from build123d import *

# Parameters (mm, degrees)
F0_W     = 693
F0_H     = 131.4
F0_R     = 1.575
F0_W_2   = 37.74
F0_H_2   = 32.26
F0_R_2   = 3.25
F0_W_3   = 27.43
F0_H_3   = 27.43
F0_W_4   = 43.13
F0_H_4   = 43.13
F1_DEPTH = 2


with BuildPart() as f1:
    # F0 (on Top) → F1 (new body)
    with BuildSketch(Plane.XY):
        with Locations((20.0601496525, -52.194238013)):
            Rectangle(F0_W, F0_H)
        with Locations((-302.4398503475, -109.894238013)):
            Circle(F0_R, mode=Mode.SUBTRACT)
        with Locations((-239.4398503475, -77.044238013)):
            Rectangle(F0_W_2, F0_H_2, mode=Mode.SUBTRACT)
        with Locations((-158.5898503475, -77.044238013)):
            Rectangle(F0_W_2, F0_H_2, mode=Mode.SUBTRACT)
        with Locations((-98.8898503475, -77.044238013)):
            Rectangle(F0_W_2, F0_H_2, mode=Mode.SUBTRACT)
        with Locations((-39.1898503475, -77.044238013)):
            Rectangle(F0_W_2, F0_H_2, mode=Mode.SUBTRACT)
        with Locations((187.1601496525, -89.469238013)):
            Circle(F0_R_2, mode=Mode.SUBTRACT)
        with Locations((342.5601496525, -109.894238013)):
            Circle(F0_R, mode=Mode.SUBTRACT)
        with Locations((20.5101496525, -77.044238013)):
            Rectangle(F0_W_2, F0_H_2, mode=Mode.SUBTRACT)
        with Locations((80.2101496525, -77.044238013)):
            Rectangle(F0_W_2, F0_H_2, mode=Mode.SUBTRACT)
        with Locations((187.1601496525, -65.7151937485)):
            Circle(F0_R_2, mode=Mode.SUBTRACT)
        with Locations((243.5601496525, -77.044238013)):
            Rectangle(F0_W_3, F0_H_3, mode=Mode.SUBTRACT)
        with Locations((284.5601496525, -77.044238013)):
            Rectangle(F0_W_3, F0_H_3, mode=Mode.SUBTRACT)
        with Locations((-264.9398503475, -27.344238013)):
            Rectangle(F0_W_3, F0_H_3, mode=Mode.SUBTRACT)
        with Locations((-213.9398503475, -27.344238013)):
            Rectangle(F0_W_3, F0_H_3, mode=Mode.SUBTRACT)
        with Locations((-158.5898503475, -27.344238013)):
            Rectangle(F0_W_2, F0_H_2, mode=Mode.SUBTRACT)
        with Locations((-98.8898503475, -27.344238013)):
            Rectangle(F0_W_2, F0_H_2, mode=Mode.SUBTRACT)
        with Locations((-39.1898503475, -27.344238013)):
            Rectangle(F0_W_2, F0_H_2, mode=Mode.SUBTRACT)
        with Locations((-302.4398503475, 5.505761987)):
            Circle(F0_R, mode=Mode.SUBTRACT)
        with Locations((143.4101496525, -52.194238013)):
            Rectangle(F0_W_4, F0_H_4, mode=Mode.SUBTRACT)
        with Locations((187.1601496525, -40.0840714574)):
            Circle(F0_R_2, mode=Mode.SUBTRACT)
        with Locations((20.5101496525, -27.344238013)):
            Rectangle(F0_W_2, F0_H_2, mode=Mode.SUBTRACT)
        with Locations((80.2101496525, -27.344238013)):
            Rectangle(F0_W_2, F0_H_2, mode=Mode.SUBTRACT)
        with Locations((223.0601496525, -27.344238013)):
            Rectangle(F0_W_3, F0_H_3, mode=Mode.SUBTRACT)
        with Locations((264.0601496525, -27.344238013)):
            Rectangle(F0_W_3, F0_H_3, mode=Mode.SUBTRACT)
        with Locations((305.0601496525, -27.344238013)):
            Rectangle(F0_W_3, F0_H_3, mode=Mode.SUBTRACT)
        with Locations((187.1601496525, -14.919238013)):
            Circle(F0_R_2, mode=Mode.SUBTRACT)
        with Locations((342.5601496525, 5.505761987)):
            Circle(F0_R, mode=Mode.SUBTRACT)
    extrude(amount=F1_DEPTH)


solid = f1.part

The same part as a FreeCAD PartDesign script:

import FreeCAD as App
import Part
import Sketcher
Q = App.Units.Quantity

doc = App.newDocument("Part")
body = doc.addObject("PartDesign::Body", "Body")

# Sketch on XY plane
sketch1 = doc.addObject("Sketcher::SketchObject", "Sketch")
body.addObject(sketch1)
sketch1.AttachmentSupport = (doc.XY_Plane, [""])
sketch1.MapMode = "FlatFace"
sketch1.addGeometry([
    Part.LineSegment(App.Vector(-326.4, 13.5, 0), App.Vector(-326.4, -117.9, 0)),  # 0
    Part.LineSegment(App.Vector(-326.4, -117.9, 0), App.Vector(366.6, -117.9, 0)),  # 1
    Part.LineSegment(App.Vector(366.6, -117.9, 0), App.Vector(366.6, 13.5, 0)),  # 2
    Part.LineSegment(App.Vector(366.6, 13.5, 0), App.Vector(-326.4, 13.5, 0)),  # 3
    Part.Circle(App.Vector(-302.4, -109.9, 0), App.Vector(0, 0, 1), 1.6),  # 4
    Part.LineSegment(App.Vector(-220.6, -93.2, 0), App.Vector(-258.3, -93.2, 0)),  # 5
    Part.LineSegment(App.Vector(-258.3, -93.2, 0), App.Vector(-258.3, -60.9, 0)),  # 6
    Part.LineSegment(App.Vector(-258.3, -60.9, 0), App.Vector(-220.6, -60.9, 0)),  # 7
    Part.LineSegment(App.Vector(-220.6, -60.9, 0), App.Vector(-220.6, -93.2, 0)),  # 8
    Part.LineSegment(App.Vector(-139.7, -93.2, 0), App.Vector(-177.5, -93.2, 0)),  # 9
    Part.LineSegment(App.Vector(-177.5, -93.2, 0), App.Vector(-177.5, -60.9, 0)),  # 10
    Part.LineSegment(App.Vector(-177.5, -60.9, 0), App.Vector(-139.7, -60.9, 0)),  # 11
    Part.LineSegment(App.Vector(-139.7, -60.9, 0), App.Vector(-139.7, -93.2, 0)),  # 12
    Part.LineSegment(App.Vector(-80, -93.2, 0), App.Vector(-117.8, -93.2, 0)),  # 13
    Part.LineSegment(App.Vector(-117.8, -93.2, 0), App.Vector(-117.8, -60.9, 0)),  # 14
    Part.LineSegment(App.Vector(-117.8, -60.9, 0), App.Vector(-80, -60.9, 0)),  # 15
    Part.LineSegment(App.Vector(-80, -60.9, 0), App.Vector(-80, -93.2, 0)),  # 16
    Part.LineSegment(App.Vector(-20.3, -93.2, 0), App.Vector(-58.1, -93.2, 0)),  # 17
    Part.LineSegment(App.Vector(-58.1, -93.2, 0), App.Vector(-58.1, -60.9, 0)),  # 18
    Part.LineSegment(App.Vector(-58.1, -60.9, 0), App.Vector(-20.3, -60.9, 0)),  # 19
    Part.LineSegment(App.Vector(-20.3, -60.9, 0), App.Vector(-20.3, -93.2, 0)),  # 20
    Part.Circle(App.Vector(342.6, -109.9, 0), App.Vector(0, 0, 1), 1.6),  # 21
    Part.Circle(App.Vector(187.2, -89.5, 0), App.Vector(0, 0, 1), 3.2),  # 22
    Part.LineSegment(App.Vector(39.4, -93.2, 0), App.Vector(1.6, -93.2, 0)),  # 23
    Part.LineSegment(App.Vector(1.6, -93.2, 0), App.Vector(1.6, -60.9, 0)),  # 24
    Part.LineSegment(App.Vector(1.6, -60.9, 0), App.Vector(39.4, -60.9, 0)),  # 25
    Part.LineSegment(App.Vector(39.4, -60.9, 0), App.Vector(39.4, -93.2, 0)),  # 26
    Part.LineSegment(App.Vector(99.1, -93.2, 0), App.Vector(61.3, -93.2, 0)),  # 27
    Part.LineSegment(App.Vector(61.3, -93.2, 0), App.Vector(61.3, -60.9, 0)),  # 28
    Part.LineSegment(App.Vector(61.3, -60.9, 0), App.Vector(99.1, -60.9, 0)),  # 29
    Part.LineSegment(App.Vector(99.1, -60.9, 0), App.Vector(99.1, -93.2, 0)),  # 30
    Part.LineSegment(App.Vector(257.3, -90.8, 0), App.Vector(229.8, -90.8, 0)),  # 31
    Part.LineSegment(App.Vector(229.8, -90.8, 0), App.Vector(229.8, -63.3, 0)),  # 32
    Part.LineSegment(App.Vector(229.8, -63.3, 0), App.Vector(257.3, -63.3, 0)),  # 33
    Part.LineSegment(App.Vector(257.3, -63.3, 0), App.Vector(257.3, -90.8, 0)),  # 34
    Part.LineSegment(App.Vector(298.3, -90.8, 0), App.Vector(270.8, -90.8, 0)),  # 35
    Part.LineSegment(App.Vector(270.8, -90.8, 0), App.Vector(270.8, -63.3, 0)),  # 36
    Part.LineSegment(App.Vector(270.8, -63.3, 0), App.Vector(298.3, -63.3, 0)),  # 37
    Part.LineSegment(App.Vector(298.3, -63.3, 0), App.Vector(298.3, -90.8, 0)),  # 38
    Part.Circle(App.Vector(187.2, -65.7, 0), App.Vector(0, 0, 1), 3.2),  # 39
    Part.LineSegment(App.Vector(-251.2, -41.1, 0), App.Vector(-278.7, -41.1, 0)),  # 40
    Part.LineSegment(App.Vector(-278.7, -41.1, 0), App.Vector(-278.7, -13.6, 0)),  # 41
    Part.LineSegment(App.Vector(-278.7, -13.6, 0), App.Vector(-251.2, -13.6, 0)),  # 42
    Part.LineSegment(App.Vector(-251.2, -13.6, 0), App.Vector(-251.2, -41.1, 0)),  # 43
    Part.LineSegment(App.Vector(-200.2, -41.1, 0), App.Vector(-227.7, -41.1, 0)),  # 44
    Part.LineSegment(App.Vector(-227.7, -41.1, 0), App.Vector(-227.7, -13.6, 0)),  # 45
    Part.LineSegment(App.Vector(-227.7, -13.6, 0), App.Vector(-200.2, -13.6, 0)),  # 46
    Part.LineSegment(App.Vector(-200.2, -13.6, 0), App.Vector(-200.2, -41.1, 0)),  # 47
    Part.LineSegment(App.Vector(-139.7, -43.5, 0), App.Vector(-177.5, -43.5, 0)),  # 48
    Part.LineSegment(App.Vector(-177.5, -43.5, 0), App.Vector(-177.5, -11.2, 0)),  # 49
    Part.LineSegment(App.Vector(-177.5, -11.2, 0), App.Vector(-139.7, -11.2, 0)),  # 50
    Part.LineSegment(App.Vector(-139.7, -11.2, 0), App.Vector(-139.7, -43.5, 0)),  # 51
    Part.LineSegment(App.Vector(-80, -43.5, 0), App.Vector(-117.8, -43.5, 0)),  # 52
    Part.LineSegment(App.Vector(-117.8, -43.5, 0), App.Vector(-117.8, -11.2, 0)),  # 53
    Part.LineSegment(App.Vector(-117.8, -11.2, 0), App.Vector(-80, -11.2, 0)),  # 54
    Part.LineSegment(App.Vector(-80, -11.2, 0), App.Vector(-80, -43.5, 0)),  # 55
    Part.LineSegment(App.Vector(-20.3, -43.5, 0), App.Vector(-58.1, -43.5, 0)),  # 56
    Part.LineSegment(App.Vector(-58.1, -43.5, 0), App.Vector(-58.1, -11.2, 0)),  # 57
    Part.LineSegment(App.Vector(-58.1, -11.2, 0), App.Vector(-20.3, -11.2, 0)),  # 58
    Part.LineSegment(App.Vector(-20.3, -11.2, 0), App.Vector(-20.3, -43.5, 0)),  # 59
    Part.Circle(App.Vector(-302.4, 5.5, 0), App.Vector(0, 0, 1), 1.6),  # 60
    Part.LineSegment(App.Vector(165, -73.8, 0), App.Vector(121.8, -73.8, 0)),  # 61
    Part.LineSegment(App.Vector(121.8, -73.8, 0), App.Vector(121.8, -30.6, 0)),  # 62
    Part.LineSegment(App.Vector(121.8, -30.6, 0), App.Vector(165, -30.6, 0)),  # 63
    Part.LineSegment(App.Vector(165, -30.6, 0), App.Vector(165, -73.8, 0)),  # 64
    Part.LineSegment(App.Vector(39.4, -43.5, 0), App.Vector(1.6, -43.5, 0)),  # 65
    Part.LineSegment(App.Vector(1.6, -43.5, 0), App.Vector(1.6, -11.2, 0)),  # 66
    Part.LineSegment(App.Vector(1.6, -11.2, 0), App.Vector(39.4, -11.2, 0)),  # 67
    Part.LineSegment(App.Vector(39.4, -11.2, 0), App.Vector(39.4, -43.5, 0)),  # 68
    Part.LineSegment(App.Vector(99.1, -43.5, 0), App.Vector(61.3, -43.5, 0)),  # 69
    Part.LineSegment(App.Vector(61.3, -43.5, 0), App.Vector(61.3, -11.2, 0)),  # 70
    Part.LineSegment(App.Vector(61.3, -11.2, 0), App.Vector(99.1, -11.2, 0)),  # 71
    Part.LineSegment(App.Vector(99.1, -11.2, 0), App.Vector(99.1, -43.5, 0)),  # 72
    Part.Circle(App.Vector(187.2, -40.1, 0), App.Vector(0, 0, 1), 3.2),  # 73
    Part.LineSegment(App.Vector(236.8, -41.1, 0), App.Vector(209.3, -41.1, 0)),  # 74
    Part.LineSegment(App.Vector(209.3, -41.1, 0), App.Vector(209.3, -13.6, 0)),  # 75
    Part.LineSegment(App.Vector(209.3, -13.6, 0), App.Vector(236.8, -13.6, 0)),  # 76
    Part.LineSegment(App.Vector(236.8, -13.6, 0), App.Vector(236.8, -41.1, 0)),  # 77
    Part.LineSegment(App.Vector(277.8, -41.1, 0), App.Vector(250.3, -41.1, 0)),  # 78
    Part.LineSegment(App.Vector(250.3, -41.1, 0), App.Vector(250.3, -13.6, 0)),  # 79
    Part.LineSegment(App.Vector(250.3, -13.6, 0), App.Vector(277.8, -13.6, 0)),  # 80
    Part.LineSegment(App.Vector(277.8, -13.6, 0), App.Vector(277.8, -41.1, 0)),  # 81
    Part.LineSegment(App.Vector(318.8, -41.1, 0), App.Vector(291.3, -41.1, 0)),  # 82
    Part.LineSegment(App.Vector(291.3, -41.1, 0), App.Vector(291.3, -13.6, 0)),  # 83
    Part.LineSegment(App.Vector(291.3, -13.6, 0), App.Vector(318.8, -13.6, 0)),  # 84
    Part.LineSegment(App.Vector(318.8, -13.6, 0), App.Vector(318.8, -41.1, 0)),  # 85
    Part.Circle(App.Vector(187.2, -14.9, 0), App.Vector(0, 0, 1), 3.2),  # 86
    Part.Circle(App.Vector(342.6, 5.5, 0), App.Vector(0, 0, 1), 1.6),  # 87
], False)
sketch1.addConstraint([
    Sketcher.Constraint("Coincident", 0, 2, 1, 1),
    Sketcher.Constraint("Coincident", 1, 2, 2, 1),
    Sketcher.Constraint("Coincident", 2, 2, 3, 1),
    Sketcher.Constraint("Coincident", 3, 2, 0, 1),
    Sketcher.Constraint("Coincident", 5, 2, 6, 1),
    Sketcher.Constraint("Coincident", 6, 2, 7, 1),
    Sketcher.Constraint("Coincident", 7, 2, 8, 1),
    Sketcher.Constraint("Coincident", 8, 2, 5, 1),
    Sketcher.Constraint("Coincident", 9, 2, 10, 1),
    Sketcher.Constraint("Coincident", 10, 2, 11, 1),
    Sketcher.Constraint("Coincident", 11, 2, 12, 1),
    Sketcher.Constraint("Coincident", 12, 2, 9, 1),
    Sketcher.Constraint("Coincident", 13, 2, 14, 1),
    Sketcher.Constraint("Coincident", 14, 2, 15, 1),
    Sketcher.Constraint("Coincident", 15, 2, 16, 1),
    Sketcher.Constraint("Coincident", 16, 2, 13, 1),
    Sketcher.Constraint("Coincident", 17, 2, 18, 1),
    Sketcher.Constraint("Coincident", 18, 2, 19, 1),
    Sketcher.Constraint("Coincident", 19, 2, 20, 1),
    Sketcher.Constraint("Coincident", 20, 2, 17, 1),
    Sketcher.Constraint("Coincident", 23, 2, 24, 1),
    Sketcher.Constraint("Coincident", 24, 2, 25, 1),
    Sketcher.Constraint("Coincident", 25, 2, 26, 1),
    Sketcher.Constraint("Coincident", 26, 2, 23, 1),
    Sketcher.Constraint("Coincident", 27, 2, 28, 1),
    Sketcher.Constraint("Coincident", 28, 2, 29, 1),
    Sketcher.Constraint("Coincident", 29, 2, 30, 1),
    Sketcher.Constraint("Coincident", 30, 2, 27, 1),
    Sketcher.Constraint("Coincident", 31, 2, 32, 1),
    Sketcher.Constraint("Coincident", 32, 2, 33, 1),
    Sketcher.Constraint("Coincident", 33, 2, 34, 1),
    Sketcher.Constraint("Coincident", 34, 2, 31, 1),
    Sketcher.Constraint("Coincident", 35, 2, 36, 1),
    Sketcher.Constraint("Coincident", 36, 2, 37, 1),
    Sketcher.Constraint("Coincident", 37, 2, 38, 1),
    Sketcher.Constraint("Coincident", 38, 2, 35, 1),
    Sketcher.Constraint("Coincident", 40, 2, 41, 1),
    Sketcher.Constraint("Coincident", 41, 2, 42, 1),
    Sketcher.Constraint("Coincident", 42, 2, 43, 1),
    Sketcher.Constraint("Coincident", 43, 2, 40, 1),
    Sketcher.Constraint("Coincident", 44, 2, 45, 1),
    Sketcher.Constraint("Coincident", 45, 2, 46, 1),
    Sketcher.Constraint("Coincident", 46, 2, 47, 1),
    Sketcher.Constraint("Coincident", 47, 2, 44, 1),
    Sketcher.Constraint("Coincident", 48, 2, 49, 1),
    Sketcher.Constraint("Coincident", 49, 2, 50, 1),
    Sketcher.Constraint("Coincident", 50, 2, 51, 1),
    Sketcher.Constraint("Coincident", 51, 2, 48, 1),
    Sketcher.Constraint("Coincident", 52, 2, 53, 1),
    Sketcher.Constraint("Coincident", 53, 2, 54, 1),
    Sketcher.Constraint("Coincident", 54, 2, 55, 1),
    Sketcher.Constraint("Coincident", 55, 2, 52, 1),
    Sketcher.Constraint("Coincident", 56, 2, 57, 1),
    Sketcher.Constraint("Coincident", 57, 2, 58, 1),
    Sketcher.Constraint("Coincident", 58, 2, 59, 1),
    Sketcher.Constraint("Coincident", 59, 2, 56, 1),
    Sketcher.Constraint("Coincident", 61, 2, 62, 1),
    Sketcher.Constraint("Coincident", 62, 2, 63, 1),
    Sketcher.Constraint("Coincident", 63, 2, 64, 1),
    Sketcher.Constraint("Coincident", 64, 2, 61, 1),
    Sketcher.Constraint("Coincident", 65, 2, 66, 1),
    Sketcher.Constraint("Coincident", 66, 2, 67, 1),
    Sketcher.Constraint("Coincident", 67, 2, 68, 1),
    Sketcher.Constraint("Coincident", 68, 2, 65, 1),
    Sketcher.Constraint("Coincident", 69, 2, 70, 1),
    Sketcher.Constraint("Coincident", 70, 2, 71, 1),
    Sketcher.Constraint("Coincident", 71, 2, 72, 1),
    Sketcher.Constraint("Coincident", 72, 2, 69, 1),
    Sketcher.Constraint("Coincident", 74, 2, 75, 1),
    Sketcher.Constraint("Coincident", 75, 2, 76, 1),
    Sketcher.Constraint("Coincident", 76, 2, 77, 1),
    Sketcher.Constraint("Coincident", 77, 2, 74, 1),
    Sketcher.Constraint("Coincident", 78, 2, 79, 1),
    Sketcher.Constraint("Coincident", 79, 2, 80, 1),
    Sketcher.Constraint("Coincident", 80, 2, 81, 1),
    Sketcher.Constraint("Coincident", 81, 2, 78, 1),
    Sketcher.Constraint("Coincident", 82, 2, 83, 1),
    Sketcher.Constraint("Coincident", 83, 2, 84, 1),
    Sketcher.Constraint("Coincident", 84, 2, 85, 1),
    Sketcher.Constraint("Coincident", 85, 2, 82, 1),
    Sketcher.Constraint("Vertical", 0),
    Sketcher.Constraint("Horizontal", 1),
    Sketcher.Constraint("Vertical", 2),
    Sketcher.Constraint("Horizontal", 3),
    Sketcher.Constraint("Horizontal", 5),
    Sketcher.Constraint("Vertical", 6),
    Sketcher.Constraint("Horizontal", 7),
    Sketcher.Constraint("Vertical", 8),
    Sketcher.Constraint("Horizontal", 9),
    Sketcher.Constraint("Vertical", 10),
    Sketcher.Constraint("Horizontal", 11),
    Sketcher.Constraint("Vertical", 12),
    Sketcher.Constraint("Horizontal", 13),
    Sketcher.Constraint("Vertical", 14),
    Sketcher.Constraint("Horizontal", 15),
    Sketcher.Constraint("Vertical", 16),
    Sketcher.Constraint("Horizontal", 17),
    Sketcher.Constraint("Vertical", 18),
    Sketcher.Constraint("Horizontal", 19),
    Sketcher.Constraint("Vertical", 20),
    Sketcher.Constraint("Horizontal", 23),
    Sketcher.Constraint("Vertical", 24),
    Sketcher.Constraint("Horizontal", 25),
    Sketcher.Constraint("Vertical", 26),
    Sketcher.Constraint("Horizontal", 27),
    Sketcher.Constraint("Vertical", 28),
    Sketcher.Constraint("Horizontal", 29),
    Sketcher.Constraint("Vertical", 30),
    Sketcher.Constraint("Horizontal", 31),
    Sketcher.Constraint("Vertical", 32),
    Sketcher.Constraint("Horizontal", 33),
    Sketcher.Constraint("Vertical", 34),
    Sketcher.Constraint("Horizontal", 35),
    Sketcher.Constraint("Vertical", 36),
    Sketcher.Constraint("Horizontal", 37),
    Sketcher.Constraint("Vertical", 38),
    Sketcher.Constraint("Horizontal", 40),
    Sketcher.Constraint("Vertical", 41),
    Sketcher.Constraint("Horizontal", 42),
    Sketcher.Constraint("Vertical", 43),
    Sketcher.Constraint("Horizontal", 44),
    Sketcher.Constraint("Vertical", 45),
    Sketcher.Constraint("Horizontal", 46),
    Sketcher.Constraint("Vertical", 47),
    Sketcher.Constraint("Horizontal", 48),
    Sketcher.Constraint("Vertical", 49),
    Sketcher.Constraint("Horizontal", 50),
    Sketcher.Constraint("Vertical", 51),
    Sketcher.Constraint("Horizontal", 52),
    Sketcher.Constraint("Vertical", 53),
    Sketcher.Constraint("Horizontal", 54),
    Sketcher.Constraint("Vertical", 55),
    Sketcher.Constraint("Horizontal", 56),
    Sketcher.Constraint("Vertical", 57),
    Sketcher.Constraint("Horizontal", 58),
    Sketcher.Constraint("Vertical", 59),
    Sketcher.Constraint("Horizontal", 61),
    Sketcher.Constraint("Vertical", 62),
    Sketcher.Constraint("Horizontal", 63),
    Sketcher.Constraint("Vertical", 64),
    Sketcher.Constraint("Horizontal", 65),
    Sketcher.Constraint("Vertical", 66),
    Sketcher.Constraint("Horizontal", 67),
    Sketcher.Constraint("Vertical", 68),
    Sketcher.Constraint("Horizontal", 69),
    Sketcher.Constraint("Vertical", 70),
    Sketcher.Constraint("Horizontal", 71),
    Sketcher.Constraint("Vertical", 72),
    Sketcher.Constraint("Horizontal", 74),
    Sketcher.Constraint("Vertical", 75),
    Sketcher.Constraint("Horizontal", 76),
    Sketcher.Constraint("Vertical", 77),
    Sketcher.Constraint("Horizontal", 78),
    Sketcher.Constraint("Vertical", 79),
    Sketcher.Constraint("Horizontal", 80),
    Sketcher.Constraint("Vertical", 81),
    Sketcher.Constraint("Horizontal", 82),
    Sketcher.Constraint("Vertical", 83),
    Sketcher.Constraint("Horizontal", 84),
    Sketcher.Constraint("Vertical", 85),
    Sketcher.Constraint("Equal", 4, 21),
    Sketcher.Constraint("Equal", 22, 39),
    Sketcher.Constraint("Equal", 21, 60),
    Sketcher.Constraint("Equal", 39, 73),
    Sketcher.Constraint("Equal", 73, 86),
    Sketcher.Constraint("Equal", 60, 87),
    Sketcher.Constraint("Horizontal", 4, 3, 21, 3),
    Sketcher.Constraint("Horizontal", 60, 3, 87, 3),
    Sketcher.Constraint("Horizontal", 8, 2, 9, 2),
    Sketcher.Constraint("Horizontal", 7, 2, 10, 2),
    Sketcher.Constraint("Horizontal", 12, 2, 13, 2),
    Sketcher.Constraint("Horizontal", 11, 2, 14, 2),
    Sketcher.Constraint("Horizontal", 16, 2, 17, 2),
    Sketcher.Constraint("Horizontal", 15, 2, 18, 2),
    Sketcher.Constraint("Horizontal", 20, 2, 23, 2),
    Sketcher.Constraint("Horizontal", 19, 2, 24, 2),
    Sketcher.Constraint("Horizontal", 26, 2, 27, 2),
    Sketcher.Constraint("Horizontal", 25, 2, 28, 2),
    Sketcher.Constraint("Horizontal", 34, 2, 35, 2),
    Sketcher.Constraint("Horizontal", 33, 2, 36, 2),
    Sketcher.Constraint("Horizontal", 43, 2, 44, 2),
    Sketcher.Constraint("Horizontal", 42, 2, 45, 2),
    Sketcher.Constraint("Horizontal", 51, 2, 52, 2),
    Sketcher.Constraint("Horizontal", 50, 2, 53, 2),
    Sketcher.Constraint("Horizontal", 55, 2, 56, 2),
    Sketcher.Constraint("Horizontal", 54, 2, 57, 2),
    Sketcher.Constraint("Horizontal", 59, 2, 65, 2),
    Sketcher.Constraint("Horizontal", 58, 2, 66, 2),
    Sketcher.Constraint("Horizontal", 68, 2, 69, 2),
    Sketcher.Constraint("Horizontal", 67, 2, 70, 2),
    Sketcher.Constraint("Horizontal", 47, 2, 74, 2),
    Sketcher.Constraint("Horizontal", 46, 2, 75, 2),
    Sketcher.Constraint("Horizontal", 77, 2, 78, 2),
    Sketcher.Constraint("Horizontal", 76, 2, 79, 2),
    Sketcher.Constraint("Horizontal", 81, 2, 82, 2),
    Sketcher.Constraint("Horizontal", 80, 2, 83, 2),
    Sketcher.Constraint("Vertical", 22, 3, 39, 3),
    Sketcher.Constraint("Vertical", 4, 3, 60, 3),
    Sketcher.Constraint("Vertical", 39, 3, 73, 3),
    Sketcher.Constraint("Vertical", 73, 3, 86, 3),
    Sketcher.Constraint("Vertical", 21, 3, 87, 3),
    Sketcher.Constraint("Vertical", 10, 2, 48, 2),
    Sketcher.Constraint("Vertical", 12, 2, 50, 2),
    Sketcher.Constraint("Vertical", 14, 2, 52, 2),
    Sketcher.Constraint("Vertical", 16, 2, 54, 2),
    Sketcher.Constraint("Vertical", 18, 2, 56, 2),
    Sketcher.Constraint("Vertical", 20, 2, 58, 2),
    Sketcher.Constraint("Vertical", 24, 2, 65, 2),
    Sketcher.Constraint("Vertical", 26, 2, 67, 2),
    Sketcher.Constraint("Vertical", 28, 2, 69, 2),
    Sketcher.Constraint("Vertical", 30, 2, 71, 2),
    Sketcher.Constraint("Equal", 7, 9),
    Sketcher.Constraint("Equal", 11, 13),
    Sketcher.Constraint("Equal", 15, 17),
    Sketcher.Constraint("Equal", 19, 23),
    Sketcher.Constraint("Equal", 25, 27),
    Sketcher.Constraint("Equal", 33, 35),
    Sketcher.Constraint("Equal", 37, 40),
    Sketcher.Constraint("Equal", 42, 44),
    Sketcher.Constraint("Equal", 46, 74),
    Sketcher.Constraint("Equal", 76, 78),
    Sketcher.Constraint("Equal", 80, 82),
    Sketcher.Constraint("Equal", 84, 32),
    Sketcher.Constraint("Equal", 38, 41),
    Sketcher.Constraint("Equal", 30, 49),
    Sketcher.Constraint("Equal", 63, 62),
    Sketcher.Constraint("Diameter", 22, Q("6.5 mm")),
    Sketcher.Constraint("Diameter", 4, Q("3.15 mm")),
    Sketcher.Constraint("DistanceX", 1, 1, 1, 2, Q("693 mm")),
    Sketcher.Constraint("DistanceY", 0, 2, 0, 1, Q("131.4 mm")),
    Sketcher.Constraint("DistanceX", 5, 2, 5, 1, Q("37.74 mm")),
    Sketcher.Constraint("DistanceX", 31, 2, 31, 1, Q("27.43 mm")),
    Sketcher.Constraint("DistanceX", 61, 2, 61, 1, Q("43.13 mm")),
    Sketcher.Constraint("DistanceY", 6, 1, 6, 2, Q("32.26 mm")),
    Sketcher.Constraint("DistanceX", 4, 3, -1, 1, Q("302.43985 mm")),
    Sketcher.Constraint("DistanceY", 4, 3, -1, 1, Q("109.894238 mm")),
    Sketcher.Constraint("DistanceX", -1, 1, 21, 3, Q("342.56015 mm")),
    Sketcher.Constraint("DistanceX", -1, 1, 22, 3, Q("187.16015 mm")),
    Sketcher.Constraint("DistanceY", 22, 3, -1, 1, Q("89.469238 mm")),
    Sketcher.Constraint("DistanceY", -1, 1, 60, 3, Q("5.505762 mm")),
    Sketcher.Constraint("DistanceY", 73, 3, -1, 1, Q("40.084071 mm")),
    Sketcher.Constraint("DistanceY", 86, 3, -1, 1, Q("14.919238 mm")),
    Sketcher.Constraint("DistanceX", 0, 2, -1, 1, Q("326.43985 mm")),
    Sketcher.Constraint("DistanceY", 0, 2, -1, 1, Q("117.894238 mm")),
    Sketcher.Constraint("DistanceX", 5, 2, -1, 1, Q("258.30985 mm")),
    Sketcher.Constraint("DistanceY", 5, 2, -1, 1, Q("93.174238 mm")),
    Sketcher.Constraint("DistanceX", 9, 2, -1, 1, Q("177.45985 mm")),
    Sketcher.Constraint("DistanceX", 13, 2, -1, 1, Q("117.75985 mm")),
    Sketcher.Constraint("DistanceX", 17, 2, -1, 1, Q("58.05985 mm")),
    Sketcher.Constraint("DistanceX", -1, 1, 23, 2, Q("1.64015 mm")),
    Sketcher.Constraint("DistanceX", -1, 1, 27, 2, Q("61.34015 mm")),
    Sketcher.Constraint("DistanceX", -1, 1, 31, 2, Q("229.84515 mm")),
    Sketcher.Constraint("DistanceY", 31, 2, -1, 1, Q("90.759238 mm")),
    Sketcher.Constraint("DistanceX", -1, 1, 35, 2, Q("270.84515 mm")),
    Sketcher.Constraint("DistanceX", 40, 2, -1, 1, Q("278.65485 mm")),
    Sketcher.Constraint("DistanceY", 40, 2, -1, 1, Q("41.059238 mm")),
    Sketcher.Constraint("DistanceX", 44, 2, -1, 1, Q("227.65485 mm")),
    Sketcher.Constraint("DistanceY", 48, 2, -1, 1, Q("43.474238 mm")),
    Sketcher.Constraint("DistanceX", -1, 1, 61, 2, Q("121.84515 mm")),
    Sketcher.Constraint("DistanceY", 61, 2, -1, 1, Q("73.759238 mm")),
    Sketcher.Constraint("DistanceX", -1, 1, 74, 2, Q("209.34515 mm")),
    Sketcher.Constraint("DistanceX", -1, 1, 78, 2, Q("250.34515 mm")),
    Sketcher.Constraint("DistanceX", -1, 1, 82, 2, Q("291.34515 mm")),
    Sketcher.Constraint("DistanceY", 39, 3, -1, 1, Q("65.715194 mm")),
])
pad1 = doc.addObject("PartDesign::Pad", "Pad")
body.addObject(pad1)
pad1.Profile = sketch1
pad1.Length = 2

doc.recompute()
